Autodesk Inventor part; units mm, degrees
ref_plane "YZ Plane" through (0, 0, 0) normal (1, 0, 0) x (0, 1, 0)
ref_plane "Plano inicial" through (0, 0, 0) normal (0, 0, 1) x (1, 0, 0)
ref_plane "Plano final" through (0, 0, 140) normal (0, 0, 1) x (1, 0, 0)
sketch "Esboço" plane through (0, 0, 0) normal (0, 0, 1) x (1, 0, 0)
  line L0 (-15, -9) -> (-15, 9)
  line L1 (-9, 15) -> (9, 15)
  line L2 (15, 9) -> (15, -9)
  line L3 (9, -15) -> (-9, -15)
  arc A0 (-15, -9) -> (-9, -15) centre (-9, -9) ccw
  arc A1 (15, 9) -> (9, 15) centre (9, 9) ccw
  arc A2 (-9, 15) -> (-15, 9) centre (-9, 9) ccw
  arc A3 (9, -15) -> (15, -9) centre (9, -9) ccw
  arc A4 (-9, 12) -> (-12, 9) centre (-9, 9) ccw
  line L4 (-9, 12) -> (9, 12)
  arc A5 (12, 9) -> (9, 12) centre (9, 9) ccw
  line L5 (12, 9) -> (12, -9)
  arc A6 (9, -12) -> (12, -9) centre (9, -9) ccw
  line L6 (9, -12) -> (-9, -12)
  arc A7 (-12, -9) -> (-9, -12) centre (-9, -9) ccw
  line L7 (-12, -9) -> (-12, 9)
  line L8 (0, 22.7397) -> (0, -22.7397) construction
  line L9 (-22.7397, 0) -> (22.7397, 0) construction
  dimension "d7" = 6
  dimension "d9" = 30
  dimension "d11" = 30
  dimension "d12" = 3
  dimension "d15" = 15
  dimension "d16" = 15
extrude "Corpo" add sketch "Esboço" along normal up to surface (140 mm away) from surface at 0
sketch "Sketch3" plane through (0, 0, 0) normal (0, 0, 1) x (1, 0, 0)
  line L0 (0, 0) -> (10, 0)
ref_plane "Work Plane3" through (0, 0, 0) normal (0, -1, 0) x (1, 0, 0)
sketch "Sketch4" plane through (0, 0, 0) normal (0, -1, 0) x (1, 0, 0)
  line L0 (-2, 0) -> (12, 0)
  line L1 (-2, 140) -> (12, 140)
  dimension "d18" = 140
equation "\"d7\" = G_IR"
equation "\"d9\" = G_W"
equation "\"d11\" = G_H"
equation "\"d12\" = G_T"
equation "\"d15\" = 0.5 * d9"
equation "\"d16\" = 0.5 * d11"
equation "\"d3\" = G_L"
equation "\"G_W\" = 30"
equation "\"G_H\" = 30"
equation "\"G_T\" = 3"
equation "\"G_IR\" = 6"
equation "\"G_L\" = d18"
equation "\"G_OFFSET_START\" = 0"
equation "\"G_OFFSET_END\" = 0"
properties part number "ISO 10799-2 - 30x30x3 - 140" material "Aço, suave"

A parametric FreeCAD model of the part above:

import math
import FreeCAD as App
import Part
import Sketcher
from FreeCAD import Vector
Q = App.Units.Quantity

doc = App.newDocument("Part")
body = doc.addObject("PartDesign::Body", "Body")

# Sketch on XY plane
sketch1 = body.newObject("Sketcher::SketchObject", "Sketch")
sketch1.AttachmentSupport = (doc.getObject("XY_Plane"), [""])
sketch1.MapMode = "FlatFace"
sketch1.addGeometry(Part.LineSegment(Vector(-15, 9, 0), Vector(-15, -9, 0)), False)
sketch1.addGeometry(Part.ArcOfCircle(Part.Circle(Vector(-9, -9, 0), Vector(0, 0, 1), 6), math.radians(180), math.radians(270)), False)
sketch1.addGeometry(Part.LineSegment(Vector(-9, -15, 0), Vector(9, -15, 0)), False)
sketch1.addGeometry(Part.ArcOfCircle(Part.Circle(Vector(9, -9, 0), Vector(0, 0, 1), 6), math.radians(-90), math.radians(0)), False)
sketch1.addGeometry(Part.LineSegment(Vector(15, -9, 0), Vector(15, 9, 0)), False)
sketch1.addGeometry(Part.ArcOfCircle(Part.Circle(Vector(9, 9, 0), Vector(0, 0, 1), 6), math.radians(0), math.radians(90)), False)
sketch1.addGeometry(Part.LineSegment(Vector(9, 15, 0), Vector(-9, 15, 0)), False)
sketch1.addGeometry(Part.ArcOfCircle(Part.Circle(Vector(-9, 9, 0), Vector(0, 0, 1), 6), math.radians(90), math.radians(180)), False)
sketch1.addGeometry(Part.ArcOfCircle(Part.Circle(Vector(-9, 9, 0), Vector(0, 0, 1), 3), math.radians(90), math.radians(180)), False)
sketch1.addGeometry(Part.LineSegment(Vector(-9, 12, 0), Vector(9, 12, 0)), False)
sketch1.addGeometry(Part.ArcOfCircle(Part.Circle(Vector(9, 9, 0), Vector(0, 0, 1), 3), math.radians(0), math.radians(90)), False)
sketch1.addGeometry(Part.LineSegment(Vector(12, 9, 0), Vector(12, -9, 0)), False)
sketch1.addGeometry(Part.ArcOfCircle(Part.Circle(Vector(9, -9, 0), Vector(0, 0, 1), 3), math.radians(-90), math.radians(0)), False)
sketch1.addGeometry(Part.LineSegment(Vector(9, -12, 0), Vector(-9, -12, 0)), False)
sketch1.addGeometry(Part.ArcOfCircle(Part.Circle(Vector(-9, -9, 0), Vector(0, 0, 1), 3), math.radians(180), math.radians(270)), False)
sketch1.addGeometry(Part.LineSegment(Vector(-12, -9, 0), Vector(-12, 9, 0)), False)
sketch1.addConstraint(Sketcher.Constraint("Tangent", 0, 2, 1, 1))
sketch1.addConstraint(Sketcher.Constraint("Tangent", 1, 2, 2, 1))
sketch1.addConstraint(Sketcher.Constraint("Tangent", 2, 2, 3, 1))
sketch1.addConstraint(Sketcher.Constraint("Tangent", 3, 2, 4, 1))
sketch1.addConstraint(Sketcher.Constraint("Tangent", 4, 2, 5, 1))
sketch1.addConstraint(Sketcher.Constraint("Tangent", 5, 2, 6, 1))
sketch1.addConstraint(Sketcher.Constraint("Tangent", 6, 2, 7, 1))
sketch1.addConstraint(Sketcher.Constraint("Tangent", 7, 2, 0, 1))
sketch1.addConstraint(Sketcher.Constraint("Tangent", 8, 1, 9, 1))
sketch1.addConstraint(Sketcher.Constraint("Tangent", 9, 2, 10, 2))
sketch1.addConstraint(Sketcher.Constraint("Tangent", 10, 1, 11, 1))
sketch1.addConstraint(Sketcher.Constraint("Tangent", 11, 2, 12, 2))
sketch1.addConstraint(Sketcher.Constraint("Tangent", 12, 1, 13, 1))
sketch1.addConstraint(Sketcher.Constraint("Tangent", 13, 2, 14, 2))
sketch1.addConstraint(Sketcher.Constraint("Tangent", 14, 1, 15, 1))
sketch1.addConstraint(Sketcher.Constraint("Tangent", 15, 2, 8, 2))
sketch1.addConstraint(Sketcher.Constraint("Vertical", 0))
sketch1.addConstraint(Sketcher.Constraint("Horizontal", 2))
sketch1.addConstraint(Sketcher.Constraint("Vertical", 4))
sketch1.addConstraint(Sketcher.Constraint("Horizontal", 6))
sketch1.addConstraint(Sketcher.Constraint("Horizontal", 9))
sketch1.addConstraint(Sketcher.Constraint("Vertical", 11))
sketch1.addConstraint(Sketcher.Constraint("Horizontal", 13))
sketch1.addConstraint(Sketcher.Constraint("Vertical", 15))
sketch1.addConstraint(Sketcher.Constraint("Coincident", 8, 3, 7, 3))
sketch1.addConstraint(Sketcher.Constraint("Coincident", 10, 3, 5, 3))
sketch1.addConstraint(Sketcher.Constraint("Coincident", 12, 3, 3, 3))
sketch1.addConstraint(Sketcher.Constraint("Equal", 1, 3))
sketch1.addConstraint(Sketcher.Constraint("Equal", 3, 5))
sketch1.addConstraint(Sketcher.Constraint("Equal", 5, 7))
sketch1.addConstraint(Sketcher.Constraint("Equal", 12, 14))
sketch1.addConstraint(Sketcher.Constraint("Symmetric", 1, 3, 5, 3, -1, 1))
sketch1.addConstraint(Sketcher.Constraint("Equal", 13, 0))
sketch1.addConstraint(Sketcher.Constraint("Radius", 1, Q("6 mm")))
sketch1.addConstraint(Sketcher.Constraint("Radius", 8, Q("3 mm")))
sketch1.addConstraint(Sketcher.Constraint("DistanceX", 0, 2, -1, 1, Q("15 mm")))
pad1 = body.newObject("PartDesign::Pad", "Pad")
pad1.Profile = sketch1
pad1.Length = 140

doc.recompute()
